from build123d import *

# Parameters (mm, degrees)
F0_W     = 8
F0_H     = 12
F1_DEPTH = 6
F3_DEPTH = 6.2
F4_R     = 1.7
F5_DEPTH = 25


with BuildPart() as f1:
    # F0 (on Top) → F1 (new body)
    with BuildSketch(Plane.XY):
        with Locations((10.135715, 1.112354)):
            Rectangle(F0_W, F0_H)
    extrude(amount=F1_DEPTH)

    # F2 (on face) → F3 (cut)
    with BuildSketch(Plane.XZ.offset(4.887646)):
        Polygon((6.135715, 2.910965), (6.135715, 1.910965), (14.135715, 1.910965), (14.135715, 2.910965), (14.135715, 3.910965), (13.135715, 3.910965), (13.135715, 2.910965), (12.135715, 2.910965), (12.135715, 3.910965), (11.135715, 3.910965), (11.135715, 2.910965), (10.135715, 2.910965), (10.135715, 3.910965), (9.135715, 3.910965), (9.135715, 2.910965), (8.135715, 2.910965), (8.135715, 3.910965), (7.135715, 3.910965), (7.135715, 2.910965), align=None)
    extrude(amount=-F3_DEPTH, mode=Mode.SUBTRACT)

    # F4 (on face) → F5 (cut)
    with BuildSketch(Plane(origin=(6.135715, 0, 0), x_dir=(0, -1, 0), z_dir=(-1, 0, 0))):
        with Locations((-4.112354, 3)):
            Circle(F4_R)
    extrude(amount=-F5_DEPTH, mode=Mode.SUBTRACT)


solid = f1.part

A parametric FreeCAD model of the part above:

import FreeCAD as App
import Part
import Sketcher
from FreeCAD import Vector

doc = App.newDocument("Part")
body = doc.addObject("PartDesign::Body", "Body")

# Sketch on XY plane
sketch1 = body.newObject("Sketcher::SketchObject", "Sketch")
sketch1.AttachmentSupport = (doc.getObject("XY_Plane"), [""])
sketch1.MapMode = "FlatFace"
sketch1.addGeometry(Part.LineSegment(Vector(6, 7, 0), Vector(6, -5, 0)), False)
sketch1.addGeometry(Part.LineSegment(Vector(6, -5, 0), Vector(14, -5, 0)), False)
sketch1.addGeometry(Part.LineSegment(Vector(14, -5, 0), Vector(14, 7, 0)), False)
sketch1.addGeometry(Part.LineSegment(Vector(14, 7, 0), Vector(6, 7, 0)), False)
sketch1.addConstraint(Sketcher.Constraint("Coincident", 0, 2, 1, 1))
sketch1.addConstraint(Sketcher.Constraint("Coincident", 1, 2, 2, 1))
sketch1.addConstraint(Sketcher.Constraint("Coincident", 2, 2, 3, 1))
sketch1.addConstraint(Sketcher.Constraint("Coincident", 3, 2, 0, 1))
sketch1.addConstraint(Sketcher.Constraint("Vertical", 0))
sketch1.addConstraint(Sketcher.Constraint("Horizontal", 1))
sketch1.addConstraint(Sketcher.Constraint("Vertical", 2))
sketch1.addConstraint(Sketcher.Constraint("Horizontal", 3))
sketch1.addConstraint(Sketcher.Constraint("DistanceX", 1, 1, 1, 2, 8.0))
sketch1.addConstraint(Sketcher.Constraint("DistanceY", 0, 2, 0, 1, 12.0))
sketch1.addConstraint(Sketcher.Constraint("DistanceX", -1, 1, 0, 2, 6.135715))
sketch1.addConstraint(Sketcher.Constraint("DistanceY", 0, 2, -1, 1, 4.887646))
pad1 = body.newObject("PartDesign::Pad", "Pad")
pad1.Profile = sketch1
pad1.Length = 6

# Sketch on XZ plane
sketch2 = body.newObject("Sketcher::SketchObject", "Sketch001")
sketch2.AttachmentSupport = (doc.getObject("XZ_Plane"), [""])
sketch2.MapMode = "FlatFace"
sketch2.AttachmentOffset = App.Placement(Vector(0, 0, 4.887646), App.Rotation())
sketch2.addGeometry(Part.LineSegment(Vector(6.1, 2.9, 0), Vector(6.1, 1.9, 0)), False)
sketch2.addGeometry(Part.LineSegment(Vector(6.1, 1.9, 0), Vector(14.1, 1.9, 0)), False)
sketch2.addGeometry(Part.LineSegment(Vector(14.1, 1.9, 0), Vector(14.1, 3.9, 0)), False)
sketch2.addGeometry(Part.LineSegment(Vector(14.1, 3.9, 0), Vector(13.1, 3.9, 0)), False)
sketch2.addGeometry(Part.LineSegment(Vector(13.1, 3.9, 0), Vector(13.1, 2.9, 0)), False)
sketch2.addGeometry(Part.LineSegment(Vector(13.1, 2.9, 0), Vector(12.1, 2.9, 0)), False)
sketch2.addGeometry(Part.LineSegment(Vector(12.1, 2.9, 0), Vector(12.1, 3.9, 0)), False)
sketch2.addGeometry(Part.LineSegment(Vector(12.1, 3.9, 0), Vector(11.1, 3.9, 0)), False)
sketch2.addGeometry(Part.LineSegment(Vector(11.1, 3.9, 0), Vector(11.1, 2.9, 0)), False)
sketch2.addGeometry(Part.LineSegment(Vector(11.1, 2.9, 0), Vector(10.1, 2.9, 0)), False)
sketch2.addGeometry(Part.LineSegment(Vector(10.1, 2.9, 0), Vector(10.1, 3.9, 0)), False)
sketch2.addGeometry(Part.LineSegment(Vector(10.1, 3.9, 0), Vector(9.1, 3.9, 0)), False)
sketch2.addGeometry(Part.LineSegment(Vector(9.1, 3.9, 0), Vector(9.1, 2.9, 0)), False)
sketch2.addGeometry(Part.LineSegment(Vector(9.1, 2.9, 0), Vector(8.1, 2.9, 0)), False)
sketch2.addGeometry(Part.LineSegment(Vector(8.1, 2.9, 0), Vector(8.1, 3.9, 0)), False)
sketch2.addGeometry(Part.LineSegment(Vector(8.1, 3.9, 0), Vector(7.1, 3.9, 0)), False)
sketch2.addGeometry(Part.LineSegment(Vector(7.1, 3.9, 0), Vector(7.1, 2.9, 0)), False)
sketch2.addGeometry(Part.LineSegment(Vector(7.1, 2.9, 0), Vector(6.1, 2.9, 0)), False)
sketch2.addConstraint(Sketcher.Constraint("Coincident", 0, 2, 1, 1))
sketch2.addConstraint(Sketcher.Constraint("Coincident", 1, 2, 2, 1))
sketch2.addConstraint(Sketcher.Constraint("Coincident", 2, 2, 3, 1))
sketch2.addConstraint(Sketcher.Constraint("Coincident", 3, 2, 4, 1))
sketch2.addConstraint(Sketcher.Constraint("Coincident", 4, 2, 5, 1))
sketch2.addConstraint(Sketcher.Constraint("Coincident", 5, 2, 6, 1))
sketch2.addConstraint(Sketcher.Constraint("Coincident", 6, 2, 7, 1))
sketch2.addConstraint(Sketcher.Constraint("Coincident", 7, 2, 8, 1))
sketch2.addConstraint(Sketcher.Constraint("Coincident", 8, 2, 9, 1))
sketch2.addConstraint(Sketcher.Constraint("Coincident", 9, 2, 10, 1))
sketch2.addConstraint(Sketcher.Constraint("Coincident", 10, 2, 11, 1))
sketch2.addConstraint(Sketcher.Constraint("Coincident", 11, 2, 12, 1))
sketch2.addConstraint(Sketcher.Constraint("Coincident", 12, 2, 13, 1))
sketch2.addConstraint(Sketcher.Constraint("Coincident", 13, 2, 14, 1))
sketch2.addConstraint(Sketcher.Constraint("Coincident", 14, 2, 15, 1))
sketch2.addConstraint(Sketcher.Constraint("Coincident", 15, 2, 16, 1))
sketch2.addConstraint(Sketcher.Constraint("Coincident", 16, 2, 17, 1))
sketch2.addConstraint(Sketcher.Constraint("Coincident", 17, 2, 0, 1))
sketch2.addConstraint(Sketcher.Constraint("Vertical", 0))
sketch2.addConstraint(Sketcher.Constraint("Horizontal", 1))
sketch2.addConstraint(Sketcher.Constraint("Vertical", 2))
sketch2.addConstraint(Sketcher.Constraint("Horizontal", 3))
sketch2.addConstraint(Sketcher.Constraint("Vertical", 4))
sketch2.addConstraint(Sketcher.Constraint("Horizontal", 5))
sketch2.addConstraint(Sketcher.Constraint("Vertical", 6))
sketch2.addConstraint(Sketcher.Constraint("Horizontal", 7))
sketch2.addConstraint(Sketcher.Constraint("Vertical", 8))
sketch2.addConstraint(Sketcher.Constraint("Horizontal", 9))
sketch2.addConstraint(Sketcher.Constraint("Vertical", 10))
sketch2.addConstraint(Sketcher.Constraint("Horizontal", 11))
sketch2.addConstraint(Sketcher.Constraint("Vertical", 12))
sketch2.addConstraint(Sketcher.Constraint("Horizontal", 13))
sketch2.addConstraint(Sketcher.Constraint("Vertical", 14))
sketch2.addConstraint(Sketcher.Constraint("Horizontal", 15))
sketch2.addConstraint(Sketcher.Constraint("Vertical", 16))
sketch2.addConstraint(Sketcher.Constraint("Horizontal", 17))
sketch2.addConstraint(Sketcher.Constraint("Horizontal", 3, 2, 6, 2))
sketch2.addConstraint(Sketcher.Constraint("Horizontal", 5, 2, 8, 2))
sketch2.addConstraint(Sketcher.Constraint("Horizontal", 7, 2, 10, 2))
sketch2.addConstraint(Sketcher.Constraint("Horizontal", 9, 2, 12, 2))
sketch2.addConstraint(Sketcher.Constraint("Horizontal", 11, 2, 14, 2))
sketch2.addConstraint(Sketcher.Constraint("Horizontal", 13, 2, 16, 2))
sketch2.addConstraint(Sketcher.Constraint("Equal", 3, 5))
sketch2.addConstraint(Sketcher.Constraint("Equal", 5, 7))
sketch2.addConstraint(Sketcher.Constraint("Equal", 7, 9))
sketch2.addConstraint(Sketcher.Constraint("Equal", 9, 11))
sketch2.addConstraint(Sketcher.Constraint("Equal", 11, 13))
sketch2.addConstraint(Sketcher.Constraint("Equal", 13, 15))
sketch2.addConstraint(Sketcher.Constraint("Equal", 15, 17))
sketch2.addConstraint(Sketcher.Constraint("Equal", 17, 0))
sketch2.addConstraint(Sketcher.Constraint("Equal", 0, 4))
sketch2.addConstraint(Sketcher.Constraint("DistanceX", 1, 1, 1, 2, 8.0))
sketch2.addConstraint(Sketcher.Constraint("DistanceX", -1, 1, 0, 2, 6.135715))
sketch2.addConstraint(Sketcher.Constraint("DistanceY", -1, 1, 0, 2, 1.910965))
pocket1 = body.newObject("PartDesign::Pocket", "Pocket")
pocket1.Profile = sketch2
pocket1.Length = 6.2

# Sketch on YZ plane
sketch3 = body.newObject("Sketcher::SketchObject", "Sketch002")
sketch3.AttachmentSupport = (doc.getObject("YZ_Plane"), [""])
sketch3.MapMode = "FlatFace"
sketch3.AttachmentOffset = App.Placement(Vector(0, 0, 6.135715), App.Rotation())
sketch3.addGeometry(Part.Circle(Vector(4.1, 3, 0), Vector(0, 0, 1), 1.7), False)
sketch3.addConstraint(Sketcher.Constraint("Diameter", 0, 3.4))
sketch3.addConstraint(Sketcher.Constraint("DistanceY", -1, 1, 0, 3, 3.0))
sketch3.addConstraint(Sketcher.Constraint("DistanceX", -1, 1, 0, 3, 4.112354))
pocket2 = body.newObject("PartDesign::Pocket", "Pocket001")
pocket2.Profile = sketch3
pocket2.Length = 25
pocket2.Reversed = True

doc.recompute()
